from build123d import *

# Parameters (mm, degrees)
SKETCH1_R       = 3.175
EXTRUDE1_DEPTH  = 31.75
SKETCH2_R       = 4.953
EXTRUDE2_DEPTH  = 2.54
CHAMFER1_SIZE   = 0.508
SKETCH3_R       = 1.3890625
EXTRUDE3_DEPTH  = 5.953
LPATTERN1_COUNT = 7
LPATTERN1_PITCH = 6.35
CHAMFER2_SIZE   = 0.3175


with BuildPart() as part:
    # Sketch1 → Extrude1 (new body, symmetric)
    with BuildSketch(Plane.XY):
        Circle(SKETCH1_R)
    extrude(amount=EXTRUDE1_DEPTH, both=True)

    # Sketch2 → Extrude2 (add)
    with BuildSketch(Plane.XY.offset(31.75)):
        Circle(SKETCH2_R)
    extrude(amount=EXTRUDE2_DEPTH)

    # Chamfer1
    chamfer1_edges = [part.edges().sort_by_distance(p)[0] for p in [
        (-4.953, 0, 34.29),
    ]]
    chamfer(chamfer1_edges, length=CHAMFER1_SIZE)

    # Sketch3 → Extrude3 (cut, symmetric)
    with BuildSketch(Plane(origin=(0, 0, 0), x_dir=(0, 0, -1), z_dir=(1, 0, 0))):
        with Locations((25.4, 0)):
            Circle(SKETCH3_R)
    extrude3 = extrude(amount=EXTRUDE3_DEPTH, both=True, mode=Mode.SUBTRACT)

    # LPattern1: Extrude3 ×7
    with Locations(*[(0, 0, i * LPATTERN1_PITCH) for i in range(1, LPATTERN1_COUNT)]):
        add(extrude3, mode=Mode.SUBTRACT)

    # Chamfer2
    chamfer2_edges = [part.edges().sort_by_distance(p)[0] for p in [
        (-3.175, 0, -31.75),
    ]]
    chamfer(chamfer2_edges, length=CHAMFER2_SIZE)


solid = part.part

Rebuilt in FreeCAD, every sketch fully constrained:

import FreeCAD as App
import Part
import Sketcher

V = App.Vector
Q = App.Units.Quantity


def edges_at(feature, points):
    """Names of the edges that pass closest to the given points."""
    edges = feature.Shape.Edges
    near = lambda p: min(range(len(edges)), key=lambda i: edges[i].distToShape(Part.Vertex(*p))[0])
    return sorted({f"Edge{near(p) + 1}" for p in points})

doc = App.newDocument("Part")
body = doc.addObject("PartDesign::Body", "Body")

sketch1 = body.newObject("Sketcher::SketchObject", "Sketch")
sketch1.AttachmentSupport = (doc.getObject("XY_Plane"), [""])
sketch1.MapMode = "FlatFace"
sketch1.addGeometry(Part.Circle(V(0, 0, 0), V(0, 0, 1), 3.2), False)
sketch1.addConstraint([
    Sketcher.Constraint("Coincident", 0, 3, -1, 1),
    Sketcher.Constraint("Diameter", 0, Q("0.25 in")),
])
pad1 = body.newObject("PartDesign::Pad", "Pad")
pad1.Profile = sketch1
pad1.Length = Q("2.5 in")
pad1.Midplane = True

sketch2 = body.newObject("Sketcher::SketchObject", "Sketch001")
sketch2.AttachmentSupport = (doc.getObject("XY_Plane"), [""])
sketch2.MapMode = "FlatFace"
sketch2.AttachmentOffset = App.Placement(V(0, 0, 1.25 * 25.4), App.Rotation())
sketch2.addGeometry(Part.Circle(V(0, 0, 0), V(0, 0, 1), 5), False)
sketch2.addConstraint([
    Sketcher.Constraint("Coincident", 0, 3, -1, 1),
    Sketcher.Constraint("Diameter", 0, Q("0.39 in")),
])
pad2 = body.newObject("PartDesign::Pad", "Pad001")
pad2.Profile = sketch2
pad2.Length = Q("0.1 in")
doc.recompute()

chamfer = body.newObject("PartDesign::Chamfer", "Chamfer")
chamfer.Base = (pad2, edges_at(pad2, [(-4.953, 0, 34.29)]))
chamfer.Size = Q("0.02 in")

sketch3 = body.newObject("Sketcher::SketchObject", "Sketch002")
sketch3.AttachmentSupport = (doc.getObject("YZ_Plane"), [""])
sketch3.MapMode = "FlatFace"
sketch3.addGeometry(Part.Circle(V(0, -25.4, 0), V(0, 0, 1), 1.4), False)
sketch3.addConstraint([
    Sketcher.Constraint("PointOnObject", 0, 3, -2),
    Sketcher.Constraint("Diameter", 0, Q("0.109375 in")),
    Sketcher.Constraint("DistanceY", 0, 3, -1, 1, Q("1 in")),
])
pocket1 = body.newObject("PartDesign::Pocket", "Pocket")
pocket1.Profile = sketch3
pocket1.Length = 11.906
pocket1.Midplane = True
doc.recompute()

linearpattern = body.newObject("PartDesign::LinearPattern", "LinearPattern")
linearpattern.Originals = [pocket1]
linearpattern.Direction = (doc.getObject("Z_Axis"), [""])
linearpattern.Mode = "offset"
linearpattern.Offset = Q("0.25 in")
linearpattern.Occurrences = 7
body.Tip = linearpattern
doc.recompute()

chamfer2 = body.newObject("PartDesign::Chamfer", "Chamfer001")
chamfer2.Base = (linearpattern, edges_at(linearpattern, [(-3.175, 0, -31.75)]))
chamfer2.Size = Q("0.0125 in")

doc.recompute()
